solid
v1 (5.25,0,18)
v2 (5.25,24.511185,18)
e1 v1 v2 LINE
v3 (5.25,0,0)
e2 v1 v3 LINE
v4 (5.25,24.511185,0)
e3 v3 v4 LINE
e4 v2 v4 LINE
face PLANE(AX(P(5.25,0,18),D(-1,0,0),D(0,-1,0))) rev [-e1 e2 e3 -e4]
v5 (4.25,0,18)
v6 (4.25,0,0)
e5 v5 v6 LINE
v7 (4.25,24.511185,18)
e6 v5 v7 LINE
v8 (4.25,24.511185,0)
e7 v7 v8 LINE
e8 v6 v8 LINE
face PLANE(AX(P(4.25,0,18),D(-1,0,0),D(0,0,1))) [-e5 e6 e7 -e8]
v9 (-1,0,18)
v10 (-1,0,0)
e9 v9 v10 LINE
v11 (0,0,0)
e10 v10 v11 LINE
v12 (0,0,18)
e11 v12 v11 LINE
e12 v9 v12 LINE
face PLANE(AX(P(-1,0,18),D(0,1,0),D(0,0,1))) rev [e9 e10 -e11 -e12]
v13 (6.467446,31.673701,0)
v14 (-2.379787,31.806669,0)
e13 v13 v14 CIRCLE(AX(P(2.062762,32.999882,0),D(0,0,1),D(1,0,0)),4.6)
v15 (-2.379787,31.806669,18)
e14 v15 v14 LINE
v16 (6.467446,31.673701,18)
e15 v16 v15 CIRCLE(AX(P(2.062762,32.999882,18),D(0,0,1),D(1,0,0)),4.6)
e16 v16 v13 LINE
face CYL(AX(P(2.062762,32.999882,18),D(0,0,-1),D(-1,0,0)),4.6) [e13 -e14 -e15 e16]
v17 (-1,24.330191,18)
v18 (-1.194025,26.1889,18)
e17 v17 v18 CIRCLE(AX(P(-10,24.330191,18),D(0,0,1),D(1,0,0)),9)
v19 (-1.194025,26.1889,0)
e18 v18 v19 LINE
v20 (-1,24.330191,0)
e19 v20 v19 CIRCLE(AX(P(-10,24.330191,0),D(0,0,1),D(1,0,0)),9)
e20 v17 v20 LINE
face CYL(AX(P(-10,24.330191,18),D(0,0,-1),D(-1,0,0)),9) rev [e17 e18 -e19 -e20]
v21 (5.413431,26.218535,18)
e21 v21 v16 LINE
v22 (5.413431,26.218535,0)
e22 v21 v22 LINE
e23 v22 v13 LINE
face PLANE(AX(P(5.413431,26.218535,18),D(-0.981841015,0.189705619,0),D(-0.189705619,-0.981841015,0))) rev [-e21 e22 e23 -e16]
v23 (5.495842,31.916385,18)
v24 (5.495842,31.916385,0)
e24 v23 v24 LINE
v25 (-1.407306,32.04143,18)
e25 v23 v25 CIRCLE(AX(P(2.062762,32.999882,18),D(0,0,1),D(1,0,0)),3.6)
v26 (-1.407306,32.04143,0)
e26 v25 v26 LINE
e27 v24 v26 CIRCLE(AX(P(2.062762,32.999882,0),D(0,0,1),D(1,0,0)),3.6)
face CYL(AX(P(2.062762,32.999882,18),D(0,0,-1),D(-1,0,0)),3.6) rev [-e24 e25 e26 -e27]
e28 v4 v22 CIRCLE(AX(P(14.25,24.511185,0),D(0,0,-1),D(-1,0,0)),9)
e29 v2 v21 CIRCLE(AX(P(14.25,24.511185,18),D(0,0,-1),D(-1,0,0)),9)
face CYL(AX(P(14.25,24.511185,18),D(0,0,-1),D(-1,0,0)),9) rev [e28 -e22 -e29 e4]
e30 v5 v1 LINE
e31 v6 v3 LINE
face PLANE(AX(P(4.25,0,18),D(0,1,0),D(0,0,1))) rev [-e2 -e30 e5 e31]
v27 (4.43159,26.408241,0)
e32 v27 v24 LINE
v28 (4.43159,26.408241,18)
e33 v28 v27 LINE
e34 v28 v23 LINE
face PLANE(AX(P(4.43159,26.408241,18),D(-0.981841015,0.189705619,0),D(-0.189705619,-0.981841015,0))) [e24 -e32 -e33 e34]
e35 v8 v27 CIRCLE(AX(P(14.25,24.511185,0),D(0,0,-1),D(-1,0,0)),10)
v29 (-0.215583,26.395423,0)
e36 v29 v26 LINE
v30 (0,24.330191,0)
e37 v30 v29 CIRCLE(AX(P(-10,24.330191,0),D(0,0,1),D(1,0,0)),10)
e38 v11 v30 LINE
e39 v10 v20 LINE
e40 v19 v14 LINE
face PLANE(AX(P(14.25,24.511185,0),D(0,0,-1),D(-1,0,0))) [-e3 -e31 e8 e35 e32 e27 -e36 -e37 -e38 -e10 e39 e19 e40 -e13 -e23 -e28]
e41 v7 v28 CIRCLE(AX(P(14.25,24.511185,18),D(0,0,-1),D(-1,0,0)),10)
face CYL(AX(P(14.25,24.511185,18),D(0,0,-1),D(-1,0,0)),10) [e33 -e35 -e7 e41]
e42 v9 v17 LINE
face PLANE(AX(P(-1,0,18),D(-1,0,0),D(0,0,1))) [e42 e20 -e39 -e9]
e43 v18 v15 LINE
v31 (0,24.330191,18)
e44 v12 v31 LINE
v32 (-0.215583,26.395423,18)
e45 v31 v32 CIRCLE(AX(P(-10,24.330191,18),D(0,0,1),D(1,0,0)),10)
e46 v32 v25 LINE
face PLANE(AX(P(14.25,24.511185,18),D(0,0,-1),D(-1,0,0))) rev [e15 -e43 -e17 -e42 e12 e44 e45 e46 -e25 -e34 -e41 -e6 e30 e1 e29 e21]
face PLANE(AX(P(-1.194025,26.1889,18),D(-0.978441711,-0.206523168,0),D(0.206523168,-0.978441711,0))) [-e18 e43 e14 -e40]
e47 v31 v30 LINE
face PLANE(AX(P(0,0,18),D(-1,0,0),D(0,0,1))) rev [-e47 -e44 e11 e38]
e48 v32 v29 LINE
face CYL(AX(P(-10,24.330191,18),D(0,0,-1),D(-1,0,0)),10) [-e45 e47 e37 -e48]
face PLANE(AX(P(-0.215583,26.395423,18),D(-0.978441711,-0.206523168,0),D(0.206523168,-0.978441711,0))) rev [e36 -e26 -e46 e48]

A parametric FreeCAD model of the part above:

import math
import FreeCAD as App
import Part
import Sketcher

V = App.Vector

doc = App.newDocument("Part")
body = doc.addObject("PartDesign::Body", "Body")

# Sketch on XY plane
sketch1 = doc.addObject("Sketcher::SketchObject", "Sketch")
body.addObject(sketch1)
sketch1.AttachmentSupport = (doc.XY_Plane, [""])
sketch1.MapMode = "FlatFace"
sketch1.addGeometry(Part.LineSegment(V(0, 0, 0), V(0, 24.330191, 0)), False)
sketch1.addGeometry(Part.ArcOfCircle(Part.Circle(V(-10, 24.330191, 0), V(0, 0, 1), 10), math.radians(0), math.radians(11.918678)), False)
sketch1.addGeometry(Part.LineSegment(V(-0.215583, 26.395423, 0), V(-1.407306, 32.04143, 0)), False)
sketch1.addGeometry(Part.ArcOfCircle(Part.Circle(V(2.062762, 32.999882, 0), V(0, 0, 1), 3.6), math.radians(-17.515952), math.radians(195.440456)), False)
sketch1.addGeometry(Part.LineSegment(V(5.495842, 31.916385, 0), V(4.43159, 26.408241, 0)), False)
sketch1.addGeometry(Part.ArcOfCircle(Part.Circle(V(14.25, 24.511185, 0), V(0, 0, 1), 10), math.radians(169.064395), math.radians(180)), False)
sketch1.addGeometry(Part.LineSegment(V(4.25, 24.511185, 0), V(4.25, 0, 0)), False)
sketch1.addGeometry(Part.LineSegment(V(4.25, 0, 0), V(5.25, 0, 0)), False)
sketch1.addGeometry(Part.LineSegment(V(5.25, 0, 0), V(5.25, 24.511185, 0)), False)
sketch1.addGeometry(Part.ArcOfCircle(Part.Circle(V(14.25, 24.511185, 0), V(0, 0, 1), 9), math.radians(169.064395), math.radians(180)), False)
sketch1.addGeometry(Part.LineSegment(V(5.413431, 26.218535, 0), V(6.467446, 31.673701, 0)), False)
sketch1.addGeometry(Part.ArcOfCircle(Part.Circle(V(2.062762, 32.999882, 0), V(0, 0, 1), 4.6), math.radians(-16.756224), math.radians(195.034118)), False)
sketch1.addGeometry(Part.LineSegment(V(-2.379787, 31.806669, 0), V(-1.194025, 26.1889, 0)), False)
sketch1.addGeometry(Part.ArcOfCircle(Part.Circle(V(-10, 24.330191, 0), V(0, 0, 1), 9), math.radians(0), math.radians(11.918678)), False)
sketch1.addGeometry(Part.LineSegment(V(-1, 24.330191, 0), V(-1, 0, 0)), False)
sketch1.addGeometry(Part.LineSegment(V(-1, 0, 0), V(0, 0, 0)), False)
sketch1.addConstraint(Sketcher.Constraint("Coincident", 0, 2, 1, 1))
sketch1.addConstraint(Sketcher.Constraint("Coincident", 1, 2, 2, 1))
sketch1.addConstraint(Sketcher.Constraint("Coincident", 2, 2, 3, 2))
sketch1.addConstraint(Sketcher.Constraint("Coincident", 3, 1, 4, 1))
sketch1.addConstraint(Sketcher.Constraint("Coincident", 4, 2, 5, 1))
sketch1.addConstraint(Sketcher.Constraint("Coincident", 5, 2, 6, 1))
sketch1.addConstraint(Sketcher.Constraint("Coincident", 6, 2, 7, 1))
sketch1.addConstraint(Sketcher.Constraint("Coincident", 7, 2, 8, 1))
sketch1.addConstraint(Sketcher.Constraint("Coincident", 8, 2, 9, 2))
sketch1.addConstraint(Sketcher.Constraint("Coincident", 9, 1, 10, 1))
sketch1.addConstraint(Sketcher.Constraint("Coincident", 10, 2, 11, 1))
sketch1.addConstraint(Sketcher.Constraint("Coincident", 11, 2, 12, 1))
sketch1.addConstraint(Sketcher.Constraint("Coincident", 12, 2, 13, 2))
sketch1.addConstraint(Sketcher.Constraint("Coincident", 13, 1, 14, 1))
sketch1.addConstraint(Sketcher.Constraint("Coincident", 14, 2, 15, 1))
sketch1.addConstraint(Sketcher.Constraint("Coincident", 15, 2, 0, 1))
sketch1.addConstraint(Sketcher.Constraint("Vertical", 0))
sketch1.addConstraint(Sketcher.Constraint("Vertical", 6))
sketch1.addConstraint(Sketcher.Constraint("Horizontal", 7))
sketch1.addConstraint(Sketcher.Constraint("Vertical", 8))
sketch1.addConstraint(Sketcher.Constraint("Vertical", 14))
sketch1.addConstraint(Sketcher.Constraint("Horizontal", 15))
sketch1.addConstraint(Sketcher.Constraint("Coincident", 15, 2, -1, 1))
sketch1.addConstraint(Sketcher.Constraint("Coincident", 9, 3, 5, 3))
sketch1.addConstraint(Sketcher.Constraint("Coincident", 11, 3, 3, 3))
sketch1.addConstraint(Sketcher.Constraint("Coincident", 13, 3, 1, 3))
sketch1.addConstraint(Sketcher.Constraint("PointOnObject", 6, 2, -1))
sketch1.addConstraint(Sketcher.Constraint("Radius", 1, 10.0))
sketch1.addConstraint(Sketcher.Constraint("Radius", 5, 10.0))
sketch1.addConstraint(Sketcher.Constraint("Radius", 9, 9.0))
sketch1.addConstraint(Sketcher.Constraint("Radius", 13, 9.0))
sketch1.addConstraint(Sketcher.Constraint("Radius", 3, 3.6))
sketch1.addConstraint(Sketcher.Constraint("Radius", 11, 4.6))
sketch1.addConstraint(Sketcher.Constraint("DistanceX", -1, 1, 5, 3, 14.25))
sketch1.addConstraint(Sketcher.Constraint("DistanceY", 0, 1, 0, 2, 24.330191))
sketch1.addConstraint(Sketcher.Constraint("DistanceY", 14, 2, 14, 1, 24.330191))
sketch1.addConstraint(Sketcher.Constraint("DistanceY", -1, 1, 10, 2, 31.673701))
sketch1.addConstraint(Sketcher.Constraint("DistanceY", -1, 1, 12, 2, 26.1889))
sketch1.addConstraint(Sketcher.Constraint("DistanceY", 5, 2, 3, 1, 7.405201))
sketch1.addConstraint(Sketcher.Constraint("DistanceY", 8, 2, 3, 1, 7.405201))
sketch1.addConstraint(Sketcher.Constraint("DistanceY", 6, 2, 6, 1, 24.511185))
sketch1.addConstraint(Sketcher.Constraint("DistanceY", -1, 1, 1, 3, 24.330191))
sketch1.addConstraint(Sketcher.Constraint("DistanceY", -1, 1, 3, 3, 32.999882))
sketch1.addConstraint(Sketcher.Constraint("DistanceY", -1, 1, 2, 2, 32.04143))
sketch1.addConstraint(Sketcher.Constraint("DistanceX", -1, 1, 3, 1, 5.495842))
sketch1.addConstraint(Sketcher.Constraint("DistanceX", -1, 1, 4, 2, 4.43159))
sketch1.addConstraint(Sketcher.Constraint("DistanceY", -1, 1, 4, 2, 26.408241))
sketch1.addConstraint(Sketcher.Constraint("DistanceX", -1, 1, 9, 1, 5.413431))
sketch1.addConstraint(Sketcher.Constraint("DistanceY", -1, 1, 11, 2, 31.806669))
sketch1.addConstraint(Sketcher.Constraint("DistanceY", 0, 2, 1, 2, 2.065232))
pad1 = doc.addObject("PartDesign::Pad", "Pad")
body.addObject(pad1)
pad1.Profile = sketch1
pad1.Length = 18

doc.recompute()
